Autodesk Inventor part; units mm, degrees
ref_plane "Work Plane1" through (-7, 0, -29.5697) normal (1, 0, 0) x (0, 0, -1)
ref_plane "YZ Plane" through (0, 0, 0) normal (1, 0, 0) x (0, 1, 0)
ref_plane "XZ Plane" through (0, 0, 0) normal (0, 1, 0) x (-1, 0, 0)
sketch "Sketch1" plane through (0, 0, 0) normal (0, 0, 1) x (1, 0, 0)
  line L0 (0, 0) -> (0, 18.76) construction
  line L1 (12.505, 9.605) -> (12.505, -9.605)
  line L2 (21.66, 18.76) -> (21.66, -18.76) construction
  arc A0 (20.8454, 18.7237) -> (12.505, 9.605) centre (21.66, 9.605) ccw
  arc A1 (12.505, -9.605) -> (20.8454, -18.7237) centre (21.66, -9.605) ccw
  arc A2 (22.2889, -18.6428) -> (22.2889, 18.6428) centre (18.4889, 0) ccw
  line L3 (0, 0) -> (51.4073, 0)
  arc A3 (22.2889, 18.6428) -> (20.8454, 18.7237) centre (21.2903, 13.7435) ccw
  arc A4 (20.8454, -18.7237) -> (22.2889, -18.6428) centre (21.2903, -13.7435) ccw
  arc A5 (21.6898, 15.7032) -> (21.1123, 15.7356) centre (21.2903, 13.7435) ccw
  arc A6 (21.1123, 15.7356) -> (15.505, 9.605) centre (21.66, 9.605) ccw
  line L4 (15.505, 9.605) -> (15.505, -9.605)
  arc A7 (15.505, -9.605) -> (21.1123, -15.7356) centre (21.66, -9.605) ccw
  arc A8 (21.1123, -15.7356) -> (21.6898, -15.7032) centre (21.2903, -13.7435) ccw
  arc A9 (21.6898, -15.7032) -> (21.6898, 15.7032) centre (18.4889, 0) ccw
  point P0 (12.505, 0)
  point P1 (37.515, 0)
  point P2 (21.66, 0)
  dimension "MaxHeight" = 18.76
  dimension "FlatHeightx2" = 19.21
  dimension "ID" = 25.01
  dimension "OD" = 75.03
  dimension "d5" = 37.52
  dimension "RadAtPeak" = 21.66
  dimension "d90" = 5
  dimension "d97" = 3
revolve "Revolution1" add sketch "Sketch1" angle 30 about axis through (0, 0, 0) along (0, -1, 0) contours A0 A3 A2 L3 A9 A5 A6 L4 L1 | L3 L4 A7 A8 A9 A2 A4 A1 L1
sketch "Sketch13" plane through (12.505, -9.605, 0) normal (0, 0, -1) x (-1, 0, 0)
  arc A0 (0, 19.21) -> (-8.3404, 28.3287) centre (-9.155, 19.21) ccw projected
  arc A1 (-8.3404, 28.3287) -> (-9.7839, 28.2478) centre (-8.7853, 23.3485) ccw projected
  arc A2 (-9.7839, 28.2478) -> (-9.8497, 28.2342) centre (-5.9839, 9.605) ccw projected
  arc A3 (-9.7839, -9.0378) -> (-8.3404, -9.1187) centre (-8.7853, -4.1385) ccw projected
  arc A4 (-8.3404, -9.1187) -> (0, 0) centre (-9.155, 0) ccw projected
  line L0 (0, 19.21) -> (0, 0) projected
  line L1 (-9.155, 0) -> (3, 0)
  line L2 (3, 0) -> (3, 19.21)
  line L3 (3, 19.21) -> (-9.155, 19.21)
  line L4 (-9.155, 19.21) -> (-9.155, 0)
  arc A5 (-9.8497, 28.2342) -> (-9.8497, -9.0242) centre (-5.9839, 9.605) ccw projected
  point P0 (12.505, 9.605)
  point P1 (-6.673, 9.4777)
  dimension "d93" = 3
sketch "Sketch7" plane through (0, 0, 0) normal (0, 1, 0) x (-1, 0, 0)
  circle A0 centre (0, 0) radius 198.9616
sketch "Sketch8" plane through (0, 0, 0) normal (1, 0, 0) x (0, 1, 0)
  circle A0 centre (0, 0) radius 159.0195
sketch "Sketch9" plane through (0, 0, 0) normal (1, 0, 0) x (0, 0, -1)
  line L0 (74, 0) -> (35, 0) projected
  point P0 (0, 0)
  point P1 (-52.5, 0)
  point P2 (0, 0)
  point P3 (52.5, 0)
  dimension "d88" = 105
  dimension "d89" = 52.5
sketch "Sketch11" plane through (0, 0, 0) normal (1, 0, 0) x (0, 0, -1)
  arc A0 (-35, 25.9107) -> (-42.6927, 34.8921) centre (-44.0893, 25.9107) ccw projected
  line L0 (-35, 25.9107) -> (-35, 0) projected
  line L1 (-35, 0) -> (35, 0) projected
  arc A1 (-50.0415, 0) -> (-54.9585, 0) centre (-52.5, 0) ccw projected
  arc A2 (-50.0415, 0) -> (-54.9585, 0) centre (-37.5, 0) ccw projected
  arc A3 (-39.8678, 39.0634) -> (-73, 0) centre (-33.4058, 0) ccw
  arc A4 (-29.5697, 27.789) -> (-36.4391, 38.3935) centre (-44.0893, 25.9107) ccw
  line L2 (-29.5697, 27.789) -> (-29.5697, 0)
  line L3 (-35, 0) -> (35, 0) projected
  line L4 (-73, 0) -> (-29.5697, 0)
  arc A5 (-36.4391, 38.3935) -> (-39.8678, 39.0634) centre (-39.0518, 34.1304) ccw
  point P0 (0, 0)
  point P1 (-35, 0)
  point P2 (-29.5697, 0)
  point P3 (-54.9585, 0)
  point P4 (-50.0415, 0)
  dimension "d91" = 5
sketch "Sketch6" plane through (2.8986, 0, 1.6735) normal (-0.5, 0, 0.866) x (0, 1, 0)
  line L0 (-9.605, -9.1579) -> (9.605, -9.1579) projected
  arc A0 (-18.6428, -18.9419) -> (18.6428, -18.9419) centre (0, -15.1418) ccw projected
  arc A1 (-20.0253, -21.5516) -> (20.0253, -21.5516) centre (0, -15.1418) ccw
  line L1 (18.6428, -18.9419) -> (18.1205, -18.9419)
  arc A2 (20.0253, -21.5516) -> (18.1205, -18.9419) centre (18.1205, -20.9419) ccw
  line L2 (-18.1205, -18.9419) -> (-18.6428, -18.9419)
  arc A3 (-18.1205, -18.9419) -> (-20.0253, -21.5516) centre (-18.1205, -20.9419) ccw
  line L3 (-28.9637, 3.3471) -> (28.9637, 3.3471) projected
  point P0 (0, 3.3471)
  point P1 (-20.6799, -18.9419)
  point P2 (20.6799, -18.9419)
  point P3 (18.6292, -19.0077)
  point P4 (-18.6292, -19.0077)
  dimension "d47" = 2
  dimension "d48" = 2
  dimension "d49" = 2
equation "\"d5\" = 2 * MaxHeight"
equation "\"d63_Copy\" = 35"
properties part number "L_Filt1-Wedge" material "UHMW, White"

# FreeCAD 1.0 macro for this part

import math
import FreeCAD as App
import Part
import Sketcher

V = App.Vector

doc = App.newDocument("Part")
body = doc.addObject("PartDesign::Body", "Body")

sketch1 = doc.addObject("Sketcher::SketchObject", "Sketch")
body.addObject(sketch1)
sketch1.AttachmentSupport = (doc.XY_Plane, [""])
sketch1.MapMode = "FlatFace"
sketch1.addGeometry([
    Part.ArcOfCircle(Part.Circle(V(21.66, 9.605, 0), V(0, 0, 1), 9.155013), math.radians(95.104848), math.radians(180)),
    Part.LineSegment(V(12.505, 9.605, 0), V(12.505, -9.605, 0)),
    Part.ArcOfCircle(Part.Circle(V(21.66, -9.605, 0), V(0, 0, 1), 9.155), math.radians(180), math.radians(264.895152)),
    Part.ArcOfCircle(Part.Circle(V(21.2903, -13.7435, 0), V(0, 0, 1), 5.000033), math.radians(-95.104896), math.radians(-78.479494)),
    Part.ArcOfCircle(Part.Circle(V(18.4889, 0, 0), V(0, 0, 1), 19.02614), math.radians(-78.479109), math.radians(78.479109)),
    Part.ArcOfCircle(Part.Circle(V(21.2903, 13.7435, 0), V(0, 0, 1), 5.000034), math.radians(78.479494), math.radians(95.104896)),
    Part.ArcOfCircle(Part.Circle(V(18.4889, 0, 0), V(0, 0, 1), 16.026112), math.radians(-78.478812), math.radians(78.478812)),
    Part.ArcOfCircle(Part.Circle(V(21.290276, -13.744954, 0), V(0, 0, 1), 1.998586), math.radians(-95.10901), math.radians(-78.46869)),
    Part.ArcOfCircle(Part.Circle(V(21.66, -9.605, 0), V(0, 0, 1), 6.155), math.radians(180), math.radians(264.894821)),
    Part.LineSegment(V(15.505, -9.605, 0), V(15.505, 9.605, 0)),
    Part.ArcOfCircle(Part.Circle(V(21.66, 9.605, 0), V(0, 0, 1), 6.155017), math.radians(95.105179), math.radians(180)),
    Part.ArcOfCircle(Part.Circle(V(21.290113, 13.742055, 0), V(0, 0, 1), 2.001459), math.radians(78.480718), math.radians(95.096981)),
], False)
sketch1.addConstraint([
    Sketcher.Constraint("Coincident", 0, 2, 1, 1),
    Sketcher.Constraint("Coincident", 1, 2, 2, 1),
    Sketcher.Constraint("Coincident", 2, 2, 3, 1),
    Sketcher.Constraint("Coincident", 3, 2, 4, 1),
    Sketcher.Constraint("Coincident", 4, 2, 5, 1),
    Sketcher.Constraint("Coincident", 5, 2, 0, 1),
    Sketcher.Constraint("Coincident", 6, 1, 7, 2),
    Sketcher.Constraint("Coincident", 7, 1, 8, 2),
    Sketcher.Constraint("Coincident", 8, 1, 9, 1),
    Sketcher.Constraint("Coincident", 9, 2, 10, 2),
    Sketcher.Constraint("Coincident", 10, 1, 11, 2),
    Sketcher.Constraint("Coincident", 11, 1, 6, 2),
    Sketcher.Constraint("Vertical", 1),
    Sketcher.Constraint("Vertical", 9),
    Sketcher.Constraint("Coincident", 6, 3, 4, 3),
    Sketcher.Constraint("Coincident", 8, 3, 2, 3),
    Sketcher.Constraint("Coincident", 10, 3, 0, 3),
    Sketcher.Constraint("PointOnObject", 4, 3, -1),
    Sketcher.Constraint("Radius", 3, 5.0),
    Sketcher.Constraint("Radius", 5, 5.0),
    Sketcher.Constraint("DistanceX", 1, 2, 8, 1, 3.0),
    Sketcher.Constraint("DistanceY", 1, 2, 1, 1, 19.21),
    Sketcher.Constraint("DistanceY", 9, 1, 9, 2, 19.21),
    Sketcher.Constraint("DistanceX", -1, 1, 0, 3, 21.66),
    Sketcher.Constraint("DistanceX", -1, 1, 2, 3, 21.66),
    Sketcher.Constraint("DistanceY", 2, 3, 0, 3, 19.21),
    Sketcher.Constraint("Radius", 0, 9.155),
    Sketcher.Constraint("Radius", 6, 16.026),
    Sketcher.Constraint("Radius", 4, 19.0261),
    Sketcher.Constraint("Radius", 7, 1.9986),
    Sketcher.Constraint("Radius", 11, 2.0015),
    Sketcher.Constraint("DistanceX", -1, 1, 11, 3, 21.29),
    Sketcher.Constraint("DistanceY", 7, 3, 2, 3, 4.14),
    Sketcher.Constraint("DistanceY", 7, 3, 1, 2, 4.14),
    Sketcher.Constraint("DistanceY", 7, 3, 8, 1, 4.14),
    Sketcher.Constraint("DistanceX", -1, 1, 3, 2, 22.289),
    Sketcher.Constraint("DistanceX", -1, 1, 4, 2, 22.289),
    Sketcher.Constraint("DistanceX", 2, 2, 3, 3, 0.445),
    Sketcher.Constraint("DistanceY", 4, 2, 5, 2, 0.081),
    Sketcher.Constraint("DistanceX", 6, 1, 3, 2, 0.599),
    Sketcher.Constraint("DistanceX", 7, 1, 7, 3, 0.178),
    Sketcher.Constraint("DistanceX", 10, 1, 5, 3, 0.178),
    Sketcher.Constraint("DistanceX", 11, 1, 4, 2, 0.599),
])
revolution = doc.addObject("PartDesign::Revolution", "Revolution")
body.addObject(revolution)
revolution.Profile = sketch1
revolution.ReferenceAxis = (sketch1, ["V_Axis"])
revolution.Angle = 30
revolution.Reversed = True

doc.recompute()
